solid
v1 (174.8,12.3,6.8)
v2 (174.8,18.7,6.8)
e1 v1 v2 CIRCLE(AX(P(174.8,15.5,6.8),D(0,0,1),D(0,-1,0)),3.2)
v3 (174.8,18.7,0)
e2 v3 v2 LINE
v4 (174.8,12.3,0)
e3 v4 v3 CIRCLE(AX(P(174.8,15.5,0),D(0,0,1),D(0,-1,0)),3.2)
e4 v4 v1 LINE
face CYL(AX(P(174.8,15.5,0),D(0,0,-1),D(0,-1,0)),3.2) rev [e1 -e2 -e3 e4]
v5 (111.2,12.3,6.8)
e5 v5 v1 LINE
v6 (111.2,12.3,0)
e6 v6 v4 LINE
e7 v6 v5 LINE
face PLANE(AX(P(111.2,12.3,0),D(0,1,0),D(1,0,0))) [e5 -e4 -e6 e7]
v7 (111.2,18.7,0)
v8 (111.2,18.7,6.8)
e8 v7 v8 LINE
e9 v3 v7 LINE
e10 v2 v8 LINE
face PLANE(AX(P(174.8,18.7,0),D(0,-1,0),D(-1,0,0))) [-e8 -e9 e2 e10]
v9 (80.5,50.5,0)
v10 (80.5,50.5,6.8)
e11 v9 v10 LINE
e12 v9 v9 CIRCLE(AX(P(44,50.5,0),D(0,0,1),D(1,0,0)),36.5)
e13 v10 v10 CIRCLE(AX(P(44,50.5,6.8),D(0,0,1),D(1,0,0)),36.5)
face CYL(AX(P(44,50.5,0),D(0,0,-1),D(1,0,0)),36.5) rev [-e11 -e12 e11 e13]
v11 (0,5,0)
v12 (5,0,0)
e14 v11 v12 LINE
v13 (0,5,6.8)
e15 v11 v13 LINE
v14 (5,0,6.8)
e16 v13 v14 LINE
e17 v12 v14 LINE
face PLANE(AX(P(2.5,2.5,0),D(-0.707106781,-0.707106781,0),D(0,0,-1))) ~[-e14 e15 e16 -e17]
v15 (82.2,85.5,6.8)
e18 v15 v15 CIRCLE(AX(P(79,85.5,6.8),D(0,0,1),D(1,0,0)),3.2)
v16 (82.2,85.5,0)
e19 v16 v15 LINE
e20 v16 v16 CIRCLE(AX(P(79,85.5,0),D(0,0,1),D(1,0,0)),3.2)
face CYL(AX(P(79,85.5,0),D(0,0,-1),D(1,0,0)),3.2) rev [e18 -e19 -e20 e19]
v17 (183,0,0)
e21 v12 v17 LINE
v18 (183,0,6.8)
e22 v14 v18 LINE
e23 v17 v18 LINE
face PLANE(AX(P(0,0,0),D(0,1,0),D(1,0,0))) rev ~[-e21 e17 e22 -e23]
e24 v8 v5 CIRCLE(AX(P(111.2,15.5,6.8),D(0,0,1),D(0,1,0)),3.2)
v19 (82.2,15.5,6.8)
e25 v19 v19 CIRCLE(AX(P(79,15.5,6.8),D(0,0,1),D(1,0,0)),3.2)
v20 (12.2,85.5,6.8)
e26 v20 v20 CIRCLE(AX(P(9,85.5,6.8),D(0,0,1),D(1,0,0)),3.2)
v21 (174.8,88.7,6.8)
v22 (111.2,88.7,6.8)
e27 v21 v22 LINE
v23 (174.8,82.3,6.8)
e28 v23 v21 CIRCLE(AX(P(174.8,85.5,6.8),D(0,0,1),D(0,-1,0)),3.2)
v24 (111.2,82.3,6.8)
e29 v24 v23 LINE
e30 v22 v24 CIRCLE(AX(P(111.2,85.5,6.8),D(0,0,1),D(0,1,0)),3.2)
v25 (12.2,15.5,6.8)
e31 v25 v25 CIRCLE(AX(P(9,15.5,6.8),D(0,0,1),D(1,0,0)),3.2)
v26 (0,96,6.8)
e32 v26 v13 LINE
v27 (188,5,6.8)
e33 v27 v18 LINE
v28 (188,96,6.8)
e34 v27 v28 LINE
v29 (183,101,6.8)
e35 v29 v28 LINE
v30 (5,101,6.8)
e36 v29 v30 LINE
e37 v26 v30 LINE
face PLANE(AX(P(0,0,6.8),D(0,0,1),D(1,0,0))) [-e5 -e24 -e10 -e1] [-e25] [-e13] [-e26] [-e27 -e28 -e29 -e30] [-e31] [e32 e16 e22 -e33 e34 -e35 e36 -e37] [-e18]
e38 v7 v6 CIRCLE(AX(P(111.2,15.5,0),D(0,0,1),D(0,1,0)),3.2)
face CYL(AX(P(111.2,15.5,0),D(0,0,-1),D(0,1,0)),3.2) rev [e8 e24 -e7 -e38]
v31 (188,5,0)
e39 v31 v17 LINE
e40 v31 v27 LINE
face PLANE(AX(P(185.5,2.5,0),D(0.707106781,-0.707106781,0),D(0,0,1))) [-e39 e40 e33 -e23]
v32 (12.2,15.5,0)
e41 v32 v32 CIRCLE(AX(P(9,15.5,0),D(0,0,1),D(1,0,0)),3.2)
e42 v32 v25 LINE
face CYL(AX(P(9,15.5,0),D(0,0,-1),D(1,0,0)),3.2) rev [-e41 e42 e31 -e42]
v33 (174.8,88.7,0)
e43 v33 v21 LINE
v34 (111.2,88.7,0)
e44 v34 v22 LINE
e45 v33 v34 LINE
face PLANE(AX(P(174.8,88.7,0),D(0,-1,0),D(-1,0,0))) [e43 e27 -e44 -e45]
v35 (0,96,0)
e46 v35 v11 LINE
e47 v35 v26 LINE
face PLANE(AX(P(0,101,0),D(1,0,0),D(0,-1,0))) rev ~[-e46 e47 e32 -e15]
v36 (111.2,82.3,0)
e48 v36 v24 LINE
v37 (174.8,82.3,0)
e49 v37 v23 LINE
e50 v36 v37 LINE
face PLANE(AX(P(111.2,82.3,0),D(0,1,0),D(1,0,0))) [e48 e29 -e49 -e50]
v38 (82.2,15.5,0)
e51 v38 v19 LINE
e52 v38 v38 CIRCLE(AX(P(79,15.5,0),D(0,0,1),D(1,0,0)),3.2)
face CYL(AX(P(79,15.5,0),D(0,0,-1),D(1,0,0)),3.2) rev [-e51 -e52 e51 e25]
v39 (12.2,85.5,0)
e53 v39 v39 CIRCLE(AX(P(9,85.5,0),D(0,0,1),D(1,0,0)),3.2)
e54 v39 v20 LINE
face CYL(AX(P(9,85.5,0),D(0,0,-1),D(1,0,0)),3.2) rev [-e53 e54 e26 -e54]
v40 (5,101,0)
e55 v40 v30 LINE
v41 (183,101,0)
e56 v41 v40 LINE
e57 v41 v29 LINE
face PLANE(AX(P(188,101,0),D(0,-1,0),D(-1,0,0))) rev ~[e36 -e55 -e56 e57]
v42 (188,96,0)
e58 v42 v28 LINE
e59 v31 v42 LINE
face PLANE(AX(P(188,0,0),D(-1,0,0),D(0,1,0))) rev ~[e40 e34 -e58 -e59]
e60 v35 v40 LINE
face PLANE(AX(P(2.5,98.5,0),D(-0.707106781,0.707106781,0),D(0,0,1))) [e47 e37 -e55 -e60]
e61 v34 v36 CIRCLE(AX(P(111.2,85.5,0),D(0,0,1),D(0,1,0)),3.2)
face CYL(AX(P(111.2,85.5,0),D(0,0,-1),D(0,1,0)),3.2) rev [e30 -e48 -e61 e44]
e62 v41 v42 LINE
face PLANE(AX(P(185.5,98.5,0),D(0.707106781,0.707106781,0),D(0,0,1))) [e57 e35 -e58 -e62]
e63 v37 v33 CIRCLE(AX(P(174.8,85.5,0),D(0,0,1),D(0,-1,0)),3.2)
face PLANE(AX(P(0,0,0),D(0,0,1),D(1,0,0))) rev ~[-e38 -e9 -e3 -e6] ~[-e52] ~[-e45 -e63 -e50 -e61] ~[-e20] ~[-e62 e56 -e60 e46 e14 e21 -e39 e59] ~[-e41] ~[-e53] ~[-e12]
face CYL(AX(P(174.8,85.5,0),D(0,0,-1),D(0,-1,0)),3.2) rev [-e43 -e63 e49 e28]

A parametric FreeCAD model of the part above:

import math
import FreeCAD as App
import Part
import Sketcher


def edges_at(feature, points):
    """Names of the edges that pass closest to the given points."""
    edges = feature.Shape.Edges
    near = lambda p: min(range(len(edges)), key=lambda i: edges[i].distToShape(Part.Vertex(*p))[0])
    return sorted({f"Edge{near(p) + 1}" for p in points})

doc = App.newDocument("Part")
body = doc.addObject("PartDesign::Body", "Body")

sketch1 = body.newObject("Sketcher::SketchObject", "Sketch")
sketch1.AttachmentSupport = (doc.getObject("XY_Plane"), [""])
sketch1.MapMode = "FlatFace"
sketch1.addGeometry([
    Part.LineSegment(App.Vector(0, 101, 0), App.Vector(0, 0, 0)),
    Part.LineSegment(App.Vector(0, 0, 0), App.Vector(188, 0, 0)),
    Part.LineSegment(App.Vector(188, 0, 0), App.Vector(188, 101, 0)),
    Part.LineSegment(App.Vector(188, 101, 0), App.Vector(0, 101, 0)),
    Part.Circle(App.Vector(9, 15.5, 0), App.Vector(0, 0, 1), 3.2),
    Part.Circle(App.Vector(79, 15.5, 0), App.Vector(0, 0, 1), 3.2),
    Part.LineSegment(App.Vector(174.8, 12.3, 0), App.Vector(111.2, 12.3, 0)),
    Part.ArcOfCircle(Part.Circle(App.Vector(111.2, 15.5, 0), App.Vector(0, 0, 1), 3.2), math.radians(90), math.radians(270)),
    Part.LineSegment(App.Vector(111.2, 18.7, 0), App.Vector(174.8, 18.7, 0)),
    Part.ArcOfCircle(Part.Circle(App.Vector(174.8, 15.5, 0), App.Vector(0, 0, 1), 3.2), math.radians(-90), math.radians(90)),
    Part.Circle(App.Vector(44, 50.5, 0), App.Vector(0, 0, 1), 36.5),
    Part.Circle(App.Vector(9, 85.5, 0), App.Vector(0, 0, 1), 3.2),
    Part.Circle(App.Vector(79, 85.5, 0), App.Vector(0, 0, 1), 3.2),
    Part.LineSegment(App.Vector(174.8, 82.3, 0), App.Vector(111.2, 82.3, 0)),
    Part.ArcOfCircle(Part.Circle(App.Vector(111.2, 85.5, 0), App.Vector(0, 0, 1), 3.2), math.radians(90), math.radians(270)),
    Part.LineSegment(App.Vector(111.2, 88.7, 0), App.Vector(174.8, 88.7, 0)),
    Part.ArcOfCircle(Part.Circle(App.Vector(174.8, 85.5, 0), App.Vector(0, 0, 1), 3.2), math.radians(-90), math.radians(90)),
], False)
sketch1.addConstraint([
    Sketcher.Constraint("Coincident", 0, 2, 1, 1),
    Sketcher.Constraint("Coincident", 1, 2, 2, 1),
    Sketcher.Constraint("Coincident", 2, 2, 3, 1),
    Sketcher.Constraint("Coincident", 3, 2, 0, 1),
    Sketcher.Constraint("Tangent", 6, 2, 7, 2),
    Sketcher.Constraint("Tangent", 7, 1, 8, 1),
    Sketcher.Constraint("Tangent", 8, 2, 9, 2),
    Sketcher.Constraint("Tangent", 9, 1, 6, 1),
    Sketcher.Constraint("Tangent", 13, 2, 14, 2),
    Sketcher.Constraint("Tangent", 14, 1, 15, 1),
    Sketcher.Constraint("Tangent", 15, 2, 16, 2),
    Sketcher.Constraint("Tangent", 16, 1, 13, 1),
    Sketcher.Constraint("Vertical", 0),
    Sketcher.Constraint("Horizontal", 1),
    Sketcher.Constraint("Vertical", 2),
    Sketcher.Constraint("Horizontal", 3),
    Sketcher.Constraint("Horizontal", 6),
    Sketcher.Constraint("Horizontal", 8),
    Sketcher.Constraint("Horizontal", 13),
    Sketcher.Constraint("Horizontal", 15),
    Sketcher.Constraint("Coincident", 0, 2, -1, 1),
    Sketcher.Constraint("Equal", 4, 5),
    Sketcher.Constraint("Equal", 5, 7),
    Sketcher.Constraint("Equal", 9, 11),
    Sketcher.Constraint("Equal", 11, 12),
    Sketcher.Constraint("Equal", 12, 14),
    Sketcher.Constraint("Horizontal", 4, 3, 5, 3),
    Sketcher.Constraint("Horizontal", 5, 3, 7, 3),
    Sketcher.Constraint("Horizontal", 11, 3, 12, 3),
    Sketcher.Constraint("Horizontal", 12, 3, 14, 3),
    Sketcher.Constraint("Vertical", 4, 3, 11, 3),
    Sketcher.Constraint("Vertical", 5, 3, 12, 3),
    Sketcher.Constraint("Vertical", 7, 3, 14, 3),
    Sketcher.Constraint("Vertical", 9, 3, 16, 3),
    Sketcher.Constraint("Diameter", 10, 73.0),
    Sketcher.Constraint("Diameter", 4, 6.4),
    Sketcher.Constraint("DistanceX", 1, 1, 1, 2, 188.0),
    Sketcher.Constraint("DistanceY", 0, 2, 0, 1, 101.0),
    Sketcher.Constraint("DistanceX", -1, 1, 4, 3, 9.0),
    Sketcher.Constraint("DistanceX", 4, 3, 5, 3, 70.0),
    Sketcher.Constraint("DistanceY", 4, 3, 11, 3, 70.0),
    Sketcher.Constraint("DistanceX", 6, 2, 6, 1, 63.6),
    Sketcher.Constraint("DistanceX", -1, 1, 10, 3, 44.0),
    Sketcher.Constraint("DistanceY", 4, 3, 10, 3, 35.0),
    Sketcher.Constraint("DistanceY", -1, 1, 4, 3, 15.5),
    Sketcher.Constraint("DistanceX", -1, 1, 7, 3, 111.2),
])
pad1 = body.newObject("PartDesign::Pad", "Pad")
pad1.Profile = sketch1
pad1.Length = 6.8
doc.recompute()

chamfer = body.newObject("PartDesign::Chamfer", "Chamfer")
chamfer.Base = (pad1, edges_at(pad1, [
    (188, 101, 3.4),
    (188, 0, 3.4),
    (0, 0, 3.4),
    (0, 101, 3.4),
]))
chamfer.Size = 5

doc.recompute()
